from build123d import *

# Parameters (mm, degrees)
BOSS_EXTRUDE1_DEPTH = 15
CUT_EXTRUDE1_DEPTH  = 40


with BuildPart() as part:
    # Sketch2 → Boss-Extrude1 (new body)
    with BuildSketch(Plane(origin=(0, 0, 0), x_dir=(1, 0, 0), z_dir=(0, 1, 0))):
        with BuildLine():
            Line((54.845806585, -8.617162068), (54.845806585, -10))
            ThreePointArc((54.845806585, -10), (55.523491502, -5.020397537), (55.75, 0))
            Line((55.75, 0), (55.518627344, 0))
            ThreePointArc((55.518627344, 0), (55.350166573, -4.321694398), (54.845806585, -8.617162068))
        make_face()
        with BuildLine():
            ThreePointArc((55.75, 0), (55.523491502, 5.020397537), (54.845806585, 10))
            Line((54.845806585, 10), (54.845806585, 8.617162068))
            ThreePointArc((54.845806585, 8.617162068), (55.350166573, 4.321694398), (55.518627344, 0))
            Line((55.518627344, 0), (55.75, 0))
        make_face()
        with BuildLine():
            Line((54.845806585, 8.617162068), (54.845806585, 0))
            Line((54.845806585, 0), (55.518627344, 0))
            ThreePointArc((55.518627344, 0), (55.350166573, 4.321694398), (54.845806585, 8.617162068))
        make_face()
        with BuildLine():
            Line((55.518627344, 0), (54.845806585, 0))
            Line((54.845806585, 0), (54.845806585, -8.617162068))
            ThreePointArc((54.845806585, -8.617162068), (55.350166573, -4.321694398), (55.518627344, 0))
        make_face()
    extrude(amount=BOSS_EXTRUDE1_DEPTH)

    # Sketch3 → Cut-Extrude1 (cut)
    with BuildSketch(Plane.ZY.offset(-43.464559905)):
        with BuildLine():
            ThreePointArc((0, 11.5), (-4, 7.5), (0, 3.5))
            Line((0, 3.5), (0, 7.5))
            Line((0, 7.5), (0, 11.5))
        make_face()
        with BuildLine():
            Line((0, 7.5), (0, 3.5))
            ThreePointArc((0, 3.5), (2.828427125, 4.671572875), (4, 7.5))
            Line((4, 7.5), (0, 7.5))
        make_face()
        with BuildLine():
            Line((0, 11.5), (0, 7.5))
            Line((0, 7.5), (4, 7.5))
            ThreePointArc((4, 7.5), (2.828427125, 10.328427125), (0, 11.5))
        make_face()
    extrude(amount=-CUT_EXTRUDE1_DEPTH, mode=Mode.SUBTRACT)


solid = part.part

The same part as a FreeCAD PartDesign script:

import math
import FreeCAD as App
import Part
import Sketcher
from FreeCAD import Vector
Q = App.Units.Quantity

doc = App.newDocument("Part")
body = doc.addObject("PartDesign::Body", "Body")

# Sketch on XZ plane
sketch1 = body.newObject("Sketcher::SketchObject", "Sketch")
sketch1.AttachmentSupport = (doc.getObject("XZ_Plane"), [""])
sketch1.MapMode = "FlatFace"
sketch1.addGeometry(Part.ArcOfCircle(Part.Circle(Vector(0, 0, 0), Vector(0, 0, 1), 55.75), math.radians(0), math.radians(10.333194)), False)
sketch1.addGeometry(Part.ArcOfCircle(Part.Circle(Vector(0, 0, 0), Vector(0, 0, 1), 55.75), math.radians(-10.333194), math.radians(0)), False)
sketch1.addGeometry(Part.LineSegment(Vector(54.845807, -10, 0), Vector(54.845807, 10, 0)), False)
sketch1.addConstraint(Sketcher.Constraint("Tangent", 0, 1, 1, 2))
sketch1.addConstraint(Sketcher.Constraint("Coincident", 1, 1, 2, 1))
sketch1.addConstraint(Sketcher.Constraint("Coincident", 2, 2, 0, 2))
sketch1.addConstraint(Sketcher.Constraint("Vertical", 2))
sketch1.addConstraint(Sketcher.Constraint("Coincident", 0, 3, -1, 1))
sketch1.addConstraint(Sketcher.Constraint("Equal", 0, 1))
sketch1.addConstraint(Sketcher.Constraint("PointOnObject", 0, 1, -1))
sketch1.addConstraint(Sketcher.Constraint("DistanceY", 2, 1, 2, 2, Q("20 mm")))
sketch1.addConstraint(Sketcher.Constraint("Radius", 0, Q("55.75 mm")))
pad1 = body.newObject("PartDesign::Pad", "Pad")
pad1.Profile = sketch1
pad1.Length = 15
pad1.Reversed = True

# Sketch on YZ plane
sketch2 = body.newObject("Sketcher::SketchObject", "Sketch001")
sketch2.AttachmentSupport = (doc.getObject("YZ_Plane"), [""])
sketch2.MapMode = "FlatFace"
sketch2.AttachmentOffset = App.Placement(Vector(0, 0, 43.46456), App.Rotation())
sketch2.addGeometry(Part.ArcOfCircle(Part.Circle(Vector(7.5, 0, 0), Vector(0, 0, 1), 4), math.radians(0), math.radians(90)), False)
sketch2.addGeometry(Part.ArcOfCircle(Part.Circle(Vector(7.5, 0, 0), Vector(0, 0, 1), 4), math.radians(180), math.radians(360)), False)
sketch2.addGeometry(Part.ArcOfCircle(Part.Circle(Vector(7.5, 0, 0), Vector(0, 0, 1), 4), math.radians(90), math.radians(180)), False)
sketch2.addConstraint(Sketcher.Constraint("Tangent", 0, 1, 1, 2))
sketch2.addConstraint(Sketcher.Constraint("Tangent", 1, 1, 2, 2))
sketch2.addConstraint(Sketcher.Constraint("Tangent", 2, 1, 0, 2))
sketch2.addConstraint(Sketcher.Constraint("PointOnObject", 0, 3, -1))
sketch2.addConstraint(Sketcher.Constraint("PointOnObject", 0, 1, -1))
sketch2.addConstraint(Sketcher.Constraint("PointOnObject", 1, 1, -1))
sketch2.addConstraint(Sketcher.Constraint("Vertical", 1, 3, 2, 1))
sketch2.addConstraint(Sketcher.Constraint("Radius", 0, Q("4 mm")))
sketch2.addConstraint(Sketcher.Constraint("DistanceX", -1, 1, 0, 3, Q("7.5 mm")))
pocket1 = body.newObject("PartDesign::Pocket", "Pocket")
pocket1.Profile = sketch2
pocket1.Length = 40
pocket1.Reversed = True

doc.recompute()
